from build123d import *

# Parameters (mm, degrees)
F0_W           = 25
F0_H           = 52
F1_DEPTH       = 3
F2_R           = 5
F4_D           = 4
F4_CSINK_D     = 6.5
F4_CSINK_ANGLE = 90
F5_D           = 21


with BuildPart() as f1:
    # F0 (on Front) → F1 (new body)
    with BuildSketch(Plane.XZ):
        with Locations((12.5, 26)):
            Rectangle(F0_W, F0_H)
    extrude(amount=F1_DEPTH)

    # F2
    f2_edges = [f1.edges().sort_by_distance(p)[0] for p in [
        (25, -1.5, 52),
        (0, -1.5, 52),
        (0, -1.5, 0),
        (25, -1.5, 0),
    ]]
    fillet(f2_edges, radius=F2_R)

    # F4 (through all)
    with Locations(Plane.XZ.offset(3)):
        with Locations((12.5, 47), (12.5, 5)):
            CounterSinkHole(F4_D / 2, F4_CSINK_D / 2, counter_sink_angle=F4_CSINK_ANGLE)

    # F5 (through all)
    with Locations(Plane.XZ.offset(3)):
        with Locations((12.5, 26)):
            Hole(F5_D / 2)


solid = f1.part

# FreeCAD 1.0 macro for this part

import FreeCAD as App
import Part
import Sketcher

V = App.Vector
Q = App.Units.Quantity


def edges_at(feature, points):
    """Names of the edges that pass closest to the given points."""
    edges = feature.Shape.Edges
    near = lambda p: min(range(len(edges)), key=lambda i: edges[i].distToShape(Part.Vertex(*p))[0])
    return sorted({f"Edge{near(p) + 1}" for p in points})


def add_polygon(sketch, points):
    """Adds a closed chain of lines whose ends are joined by coincident constraints."""
    first, n = sketch.GeometryCount, len(points)
    for a, b in zip(points, points[1:] + points[:1]):
        sketch.addGeometry(Part.LineSegment(App.Vector(*a, 0), App.Vector(*b, 0)), False)
    for i in range(n):
        sketch.addConstraint(Sketcher.Constraint("Coincident", first + i, 2, first + (i + 1) % n, 1))

doc = App.newDocument("Part")
body = doc.addObject("PartDesign::Body", "Body")

sketch1 = body.newObject("Sketcher::SketchObject", "Sketch")
sketch1.AttachmentSupport = (doc.getObject("XZ_Plane"), [""])
sketch1.MapMode = "FlatFace"
add_polygon(sketch1, [(0, 52), (0, 0), (25, 0), (25, 52)])
sketch1.addConstraint([
    Sketcher.Constraint("Vertical", 0),
    Sketcher.Constraint("Horizontal", 1),
    Sketcher.Constraint("Vertical", 2),
    Sketcher.Constraint("Horizontal", 3),
    Sketcher.Constraint("Coincident", 0, 2, -1, 1),
    Sketcher.Constraint("DistanceX", 1, 1, 1, 2, Q("25 mm")),
    Sketcher.Constraint("DistanceY", 0, 2, 0, 1, Q("52 mm")),
])
pad1 = body.newObject("PartDesign::Pad", "Pad")
pad1.Profile = sketch1
pad1.Length = 3
doc.recompute()

fillet = body.newObject("PartDesign::Fillet", "Fillet")
fillet.Base = (pad1, edges_at(pad1, [
    (25, -1.5, 52),
    (0, -1.5, 52),
    (0, -1.5, 0),
    (25, -1.5, 0),
]))
fillet.Radius = 5

sketch2 = body.newObject("Sketcher::SketchObject", "Sketch001")
sketch2.AttachmentSupport = (doc.getObject("XZ_Plane"), [""])
sketch2.MapMode = "FlatFace"
sketch2.AttachmentOffset = App.Placement(V(0, 0, 3), App.Rotation())
sketch2.addGeometry([
    Part.Circle(V(12.5, 47, 0), V(0, 0, 1), 2),
    Part.Circle(V(12.5, 5, 0), V(0, 0, 1), 2),
], False)
sketch2.addConstraint([
    Sketcher.Constraint("Equal", 0, 1),
    Sketcher.Constraint("Vertical", 0, 3, 1, 3),
    Sketcher.Constraint("Diameter", 0, Q("4 mm")),
    Sketcher.Constraint("DistanceY", -1, 1, 0, 3, Q("47 mm")),
    Sketcher.Constraint("DistanceY", -1, 1, 1, 3, Q("5 mm")),
    Sketcher.Constraint("DistanceX", -1, 1, 0, 3, Q("12.5 mm")),
])
doc.recompute()
hole = body.newObject("PartDesign::Hole", "Hole")
hole.Profile = sketch2
hole.ThreadType = "None"
hole.Diameter = 4
hole.DepthType = "ThroughAll"
hole.HoleCutType = "Countersink"
hole.HoleCutDiameter = 6.5
hole.HoleCutCountersinkAngle = 90

sketch3 = body.newObject("Sketcher::SketchObject", "Sketch002")
sketch3.AttachmentSupport = (doc.getObject("XZ_Plane"), [""])
sketch3.MapMode = "FlatFace"
sketch3.AttachmentOffset = App.Placement(V(0, 0, 3), App.Rotation())
sketch3.addGeometry(Part.Circle(V(12.5, 26, 0), V(0, 0, 1), 10.5), False)
sketch3.addConstraint([
    Sketcher.Constraint("Diameter", 0, Q("21 mm")),
    Sketcher.Constraint("DistanceY", -1, 1, 0, 3, Q("26 mm")),
    Sketcher.Constraint("DistanceX", -1, 1, 0, 3, Q("12.5 mm")),
])
doc.recompute()
hole2 = body.newObject("PartDesign::Hole", "Hole001")
hole2.Profile = sketch3
hole2.ThreadType = "None"
hole2.Diameter = 21
hole2.DepthType = "ThroughAll"

doc.recompute()
